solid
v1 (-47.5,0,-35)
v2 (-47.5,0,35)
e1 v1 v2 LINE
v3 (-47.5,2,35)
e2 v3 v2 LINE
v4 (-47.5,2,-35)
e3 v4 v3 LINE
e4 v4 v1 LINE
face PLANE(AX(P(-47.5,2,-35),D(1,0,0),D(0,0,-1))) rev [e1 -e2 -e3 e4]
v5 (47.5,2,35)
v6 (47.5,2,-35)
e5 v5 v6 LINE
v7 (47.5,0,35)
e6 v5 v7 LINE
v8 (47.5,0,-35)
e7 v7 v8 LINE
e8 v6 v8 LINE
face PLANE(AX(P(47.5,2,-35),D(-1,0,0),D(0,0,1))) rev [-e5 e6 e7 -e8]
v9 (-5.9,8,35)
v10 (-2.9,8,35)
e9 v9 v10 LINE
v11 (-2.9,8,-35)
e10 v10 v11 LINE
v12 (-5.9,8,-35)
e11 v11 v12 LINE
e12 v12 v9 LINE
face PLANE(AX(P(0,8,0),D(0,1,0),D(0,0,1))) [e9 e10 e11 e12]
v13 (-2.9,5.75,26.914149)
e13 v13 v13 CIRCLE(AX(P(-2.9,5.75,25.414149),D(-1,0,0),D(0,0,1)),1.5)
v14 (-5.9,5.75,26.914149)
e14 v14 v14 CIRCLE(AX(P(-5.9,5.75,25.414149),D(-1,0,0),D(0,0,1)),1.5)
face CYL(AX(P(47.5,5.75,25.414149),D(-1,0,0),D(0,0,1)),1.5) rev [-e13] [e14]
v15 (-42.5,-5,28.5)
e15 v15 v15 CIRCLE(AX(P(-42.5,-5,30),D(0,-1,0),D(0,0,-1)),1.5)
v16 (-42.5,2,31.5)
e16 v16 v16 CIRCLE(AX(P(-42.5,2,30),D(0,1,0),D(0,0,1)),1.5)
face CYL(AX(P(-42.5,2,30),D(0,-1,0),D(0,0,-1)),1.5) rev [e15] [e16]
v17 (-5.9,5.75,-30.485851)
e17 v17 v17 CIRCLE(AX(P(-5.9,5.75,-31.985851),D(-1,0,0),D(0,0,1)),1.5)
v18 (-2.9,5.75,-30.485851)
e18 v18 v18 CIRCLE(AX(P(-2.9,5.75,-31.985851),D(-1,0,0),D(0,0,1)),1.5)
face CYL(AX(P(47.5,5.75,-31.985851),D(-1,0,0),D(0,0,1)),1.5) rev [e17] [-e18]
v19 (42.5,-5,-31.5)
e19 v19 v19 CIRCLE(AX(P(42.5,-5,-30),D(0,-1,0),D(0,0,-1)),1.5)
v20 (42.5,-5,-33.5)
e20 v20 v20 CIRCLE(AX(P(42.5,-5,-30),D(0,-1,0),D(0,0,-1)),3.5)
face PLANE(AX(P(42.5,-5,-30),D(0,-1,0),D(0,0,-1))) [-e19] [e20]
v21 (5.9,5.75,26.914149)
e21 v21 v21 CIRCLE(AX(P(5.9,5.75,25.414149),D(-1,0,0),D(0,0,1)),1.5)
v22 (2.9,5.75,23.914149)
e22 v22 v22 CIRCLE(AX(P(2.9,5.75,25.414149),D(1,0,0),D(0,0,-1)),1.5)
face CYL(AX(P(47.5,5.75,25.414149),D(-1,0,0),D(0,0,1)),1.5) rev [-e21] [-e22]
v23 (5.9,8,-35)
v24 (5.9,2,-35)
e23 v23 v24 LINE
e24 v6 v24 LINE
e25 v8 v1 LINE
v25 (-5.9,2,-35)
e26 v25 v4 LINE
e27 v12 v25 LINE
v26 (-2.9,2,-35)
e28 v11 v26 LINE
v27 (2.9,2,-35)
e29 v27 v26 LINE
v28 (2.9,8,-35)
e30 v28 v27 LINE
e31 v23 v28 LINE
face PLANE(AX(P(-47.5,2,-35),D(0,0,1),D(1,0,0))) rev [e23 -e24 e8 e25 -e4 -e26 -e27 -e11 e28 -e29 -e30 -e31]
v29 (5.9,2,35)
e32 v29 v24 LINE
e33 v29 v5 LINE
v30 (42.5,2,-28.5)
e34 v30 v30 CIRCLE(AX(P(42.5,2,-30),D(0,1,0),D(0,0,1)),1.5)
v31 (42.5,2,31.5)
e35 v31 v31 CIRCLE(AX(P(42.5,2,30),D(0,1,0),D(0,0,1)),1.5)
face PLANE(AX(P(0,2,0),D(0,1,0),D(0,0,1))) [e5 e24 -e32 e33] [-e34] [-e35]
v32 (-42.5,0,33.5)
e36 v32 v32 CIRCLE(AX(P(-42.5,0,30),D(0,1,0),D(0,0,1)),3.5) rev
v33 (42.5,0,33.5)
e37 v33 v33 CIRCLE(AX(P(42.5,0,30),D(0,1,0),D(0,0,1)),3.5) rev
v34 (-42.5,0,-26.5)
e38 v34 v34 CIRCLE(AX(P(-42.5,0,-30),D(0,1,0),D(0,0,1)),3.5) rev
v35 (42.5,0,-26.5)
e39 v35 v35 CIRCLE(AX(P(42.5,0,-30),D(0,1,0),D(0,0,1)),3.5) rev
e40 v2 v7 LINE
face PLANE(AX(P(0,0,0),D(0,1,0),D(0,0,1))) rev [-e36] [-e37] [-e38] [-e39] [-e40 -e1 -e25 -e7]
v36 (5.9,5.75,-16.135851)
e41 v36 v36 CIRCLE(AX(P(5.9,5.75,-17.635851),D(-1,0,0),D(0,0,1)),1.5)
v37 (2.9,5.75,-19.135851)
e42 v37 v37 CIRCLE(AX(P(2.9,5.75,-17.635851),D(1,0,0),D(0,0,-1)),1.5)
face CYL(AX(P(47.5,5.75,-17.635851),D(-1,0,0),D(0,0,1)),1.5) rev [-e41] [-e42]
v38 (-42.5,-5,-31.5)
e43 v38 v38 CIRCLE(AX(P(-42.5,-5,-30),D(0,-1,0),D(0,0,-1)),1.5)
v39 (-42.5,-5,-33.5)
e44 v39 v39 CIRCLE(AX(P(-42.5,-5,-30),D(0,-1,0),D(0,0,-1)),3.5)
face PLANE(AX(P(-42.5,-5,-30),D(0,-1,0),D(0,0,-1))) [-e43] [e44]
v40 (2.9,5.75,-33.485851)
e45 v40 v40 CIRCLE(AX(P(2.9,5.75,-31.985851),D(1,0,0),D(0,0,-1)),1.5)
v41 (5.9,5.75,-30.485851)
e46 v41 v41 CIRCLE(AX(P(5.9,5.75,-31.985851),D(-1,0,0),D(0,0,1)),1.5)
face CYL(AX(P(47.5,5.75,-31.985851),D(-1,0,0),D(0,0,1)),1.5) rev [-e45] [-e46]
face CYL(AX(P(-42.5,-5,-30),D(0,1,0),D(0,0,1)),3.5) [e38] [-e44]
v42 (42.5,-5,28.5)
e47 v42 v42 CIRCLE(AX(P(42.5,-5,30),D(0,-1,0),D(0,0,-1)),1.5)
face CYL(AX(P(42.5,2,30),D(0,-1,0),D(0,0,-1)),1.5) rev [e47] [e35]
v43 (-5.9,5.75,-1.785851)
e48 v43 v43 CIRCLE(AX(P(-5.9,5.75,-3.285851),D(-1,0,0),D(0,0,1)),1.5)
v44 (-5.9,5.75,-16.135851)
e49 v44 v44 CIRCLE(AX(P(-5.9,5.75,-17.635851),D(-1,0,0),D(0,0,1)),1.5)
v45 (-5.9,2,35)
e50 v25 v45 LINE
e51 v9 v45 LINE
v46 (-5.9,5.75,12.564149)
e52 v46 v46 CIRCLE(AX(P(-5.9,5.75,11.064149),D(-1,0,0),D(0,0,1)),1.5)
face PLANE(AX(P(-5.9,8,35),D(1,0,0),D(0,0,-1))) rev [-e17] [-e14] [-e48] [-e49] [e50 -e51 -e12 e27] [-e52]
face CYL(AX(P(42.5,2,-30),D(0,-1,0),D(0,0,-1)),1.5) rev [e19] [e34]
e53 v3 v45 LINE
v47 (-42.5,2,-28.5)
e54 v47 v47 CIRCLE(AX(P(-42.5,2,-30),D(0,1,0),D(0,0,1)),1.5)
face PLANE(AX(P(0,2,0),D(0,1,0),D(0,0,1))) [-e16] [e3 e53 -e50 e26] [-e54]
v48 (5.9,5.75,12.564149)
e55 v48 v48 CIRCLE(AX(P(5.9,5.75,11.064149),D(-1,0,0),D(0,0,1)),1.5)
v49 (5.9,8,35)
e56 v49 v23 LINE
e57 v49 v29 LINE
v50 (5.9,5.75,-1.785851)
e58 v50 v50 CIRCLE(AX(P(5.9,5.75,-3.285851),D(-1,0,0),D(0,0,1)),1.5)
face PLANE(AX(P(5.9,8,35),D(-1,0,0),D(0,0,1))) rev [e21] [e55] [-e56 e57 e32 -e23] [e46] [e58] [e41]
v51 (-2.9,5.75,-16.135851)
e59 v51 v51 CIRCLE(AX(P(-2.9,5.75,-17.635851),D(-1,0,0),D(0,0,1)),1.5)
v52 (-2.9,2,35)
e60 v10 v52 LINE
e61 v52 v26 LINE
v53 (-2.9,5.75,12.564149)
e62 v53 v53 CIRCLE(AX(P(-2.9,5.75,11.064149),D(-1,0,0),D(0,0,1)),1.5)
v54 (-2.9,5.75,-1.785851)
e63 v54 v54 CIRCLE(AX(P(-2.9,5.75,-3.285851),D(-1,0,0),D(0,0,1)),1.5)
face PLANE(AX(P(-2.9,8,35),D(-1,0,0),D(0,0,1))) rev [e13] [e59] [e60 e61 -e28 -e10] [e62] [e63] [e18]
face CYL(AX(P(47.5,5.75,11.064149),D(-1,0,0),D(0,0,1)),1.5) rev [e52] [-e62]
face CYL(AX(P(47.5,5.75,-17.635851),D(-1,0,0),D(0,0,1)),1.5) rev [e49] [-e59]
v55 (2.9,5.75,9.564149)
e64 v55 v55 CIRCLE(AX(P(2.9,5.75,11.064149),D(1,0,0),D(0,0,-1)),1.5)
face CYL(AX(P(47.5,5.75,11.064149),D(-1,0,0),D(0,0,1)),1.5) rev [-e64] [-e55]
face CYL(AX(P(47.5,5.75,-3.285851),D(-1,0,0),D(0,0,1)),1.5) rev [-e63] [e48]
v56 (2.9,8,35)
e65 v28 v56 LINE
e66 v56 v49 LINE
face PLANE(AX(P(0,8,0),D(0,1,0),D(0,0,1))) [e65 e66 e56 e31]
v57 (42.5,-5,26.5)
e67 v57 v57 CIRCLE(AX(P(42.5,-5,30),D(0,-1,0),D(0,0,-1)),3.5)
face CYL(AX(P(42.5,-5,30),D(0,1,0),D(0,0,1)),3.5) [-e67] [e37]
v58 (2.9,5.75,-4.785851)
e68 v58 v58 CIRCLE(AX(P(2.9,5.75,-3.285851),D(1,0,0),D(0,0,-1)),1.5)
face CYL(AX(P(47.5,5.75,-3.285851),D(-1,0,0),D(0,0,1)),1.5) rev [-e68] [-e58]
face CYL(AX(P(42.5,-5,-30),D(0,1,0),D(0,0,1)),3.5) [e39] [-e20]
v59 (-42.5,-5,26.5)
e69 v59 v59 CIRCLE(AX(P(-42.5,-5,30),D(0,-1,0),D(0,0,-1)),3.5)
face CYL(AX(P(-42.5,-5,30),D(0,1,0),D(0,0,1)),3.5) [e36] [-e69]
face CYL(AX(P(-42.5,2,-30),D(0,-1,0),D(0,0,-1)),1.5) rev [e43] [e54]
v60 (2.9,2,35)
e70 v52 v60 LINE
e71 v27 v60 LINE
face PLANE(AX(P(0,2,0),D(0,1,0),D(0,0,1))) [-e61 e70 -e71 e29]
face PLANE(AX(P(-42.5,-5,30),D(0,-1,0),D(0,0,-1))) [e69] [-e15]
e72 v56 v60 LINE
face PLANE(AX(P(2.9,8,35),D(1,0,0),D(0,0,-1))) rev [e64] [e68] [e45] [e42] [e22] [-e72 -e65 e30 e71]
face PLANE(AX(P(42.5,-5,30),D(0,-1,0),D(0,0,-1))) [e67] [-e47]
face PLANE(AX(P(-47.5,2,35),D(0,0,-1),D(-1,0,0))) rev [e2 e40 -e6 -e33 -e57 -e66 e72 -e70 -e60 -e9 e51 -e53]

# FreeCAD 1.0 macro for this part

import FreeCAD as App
import Part
import Sketcher

V = App.Vector


def add_polygon(sketch, points):
    """Adds a closed chain of lines whose ends are joined by coincident constraints."""
    first, n = sketch.GeometryCount, len(points)
    for a, b in zip(points, points[1:] + points[:1]):
        sketch.addGeometry(Part.LineSegment(App.Vector(*a, 0), App.Vector(*b, 0)), False)
    for i in range(n):
        sketch.addConstraint(Sketcher.Constraint("Coincident", first + i, 2, first + (i + 1) % n, 1))

doc = App.newDocument("Part")
body = doc.addObject("PartDesign::Body", "Body")

sketch1 = doc.addObject("Sketcher::SketchObject", "Sketch")
body.addObject(sketch1)
sketch1.AttachmentSupport = (doc.XZ_Plane, [""])
sketch1.MapMode = "FlatFace"
add_polygon(sketch1, [(-47.5, -35), (-47.5, 35), (47.5, 35), (47.5, -35)])
sketch1.addGeometry(Part.Circle(V(-42.5, 30, 0), V(0, 0, 1), 1.5), False)
sketch1.addGeometry(Part.Circle(V(42.5, 30, 0), V(0, 0, 1), 1.5), False)
sketch1.addGeometry(Part.Circle(V(-42.5, -30, 0), V(0, 0, 1), 1.5), False)
sketch1.addGeometry(Part.Circle(V(42.5, -30, 0), V(0, 0, 1), 1.5), False)
sketch1.addConstraint([
    Sketcher.Constraint("Vertical", 0),
    Sketcher.Constraint("Horizontal", 1),
    Sketcher.Constraint("Vertical", 2),
    Sketcher.Constraint("Horizontal", 3),
    Sketcher.Constraint("Equal", 4, 5),
    Sketcher.Constraint("Equal", 5, 6),
    Sketcher.Constraint("Equal", 6, 7),
    Sketcher.Constraint("Symmetric", 5, 3, 6, 3, -1, 1),
    Sketcher.Constraint("Symmetric", 4, 3, 7, 3, -1, 1),
    Sketcher.Constraint("Symmetric", 0, 2, 2, 2, -1, 1),
    Sketcher.Constraint("Symmetric", 4, 3, 5, 3, -2),
    Sketcher.Constraint("Diameter", 4, 3.0),
    Sketcher.Constraint("DistanceX", 1, 1, 1, 2, 95.0),
    Sketcher.Constraint("DistanceY", 0, 1, 0, 2, 70.0),
    Sketcher.Constraint("DistanceY", -1, 1, 4, 3, 30.0),
    Sketcher.Constraint("DistanceX", 4, 3, 5, 3, 85.0),
])
pad1 = doc.addObject("PartDesign::Pad", "Pad")
body.addObject(pad1)
pad1.Profile = sketch1
pad1.Length = 2
pad1.Reversed = True

sketch2 = doc.addObject("Sketcher::SketchObject", "Sketch001")
body.addObject(sketch2)
sketch2.AttachmentSupport = (doc.XZ_Plane, [""])
sketch2.MapMode = "FlatFace"
sketch2.AttachmentOffset = App.Placement(V(0, 0, -2), App.Rotation())
add_polygon(sketch2, [(-5.9, -35), (-5.9, 35), (-2.9, 35), (-2.9, -35)])
add_polygon(sketch2, [(2.9, -35), (2.9, 35), (5.9, 35), (5.9, -35)])
sketch2.addConstraint([
    Sketcher.Constraint("Vertical", 0),
    Sketcher.Constraint("Horizontal", 1),
    Sketcher.Constraint("Vertical", 2),
    Sketcher.Constraint("Horizontal", 3),
    Sketcher.Constraint("Vertical", 4),
    Sketcher.Constraint("Horizontal", 5),
    Sketcher.Constraint("Vertical", 6),
    Sketcher.Constraint("Horizontal", 7),
    Sketcher.Constraint("Symmetric", 2, 2, 4, 2, -1, 1),
    Sketcher.Constraint("Symmetric", 0, 2, 6, 2, -1, 1),
    Sketcher.Constraint("Horizontal", 1, 2, 4, 2),
    Sketcher.Constraint("DistanceX", 1, 1, 1, 2, 3.0),
    Sketcher.Constraint("DistanceY", 0, 1, 0, 2, 70.0),
    Sketcher.Constraint("DistanceX", 0, 2, -1, 1, 5.9),
])
pad2 = doc.addObject("PartDesign::Pad", "Pad001")
body.addObject(pad2)
pad2.Profile = sketch2
pad2.Length = 6
pad2.Reversed = True

sketch3 = doc.addObject("Sketcher::SketchObject", "Sketch002")
body.addObject(sketch3)
sketch3.AttachmentSupport = (doc.YZ_Plane, [""])
sketch3.MapMode = "FlatFace"
sketch3.AttachmentOffset = App.Placement(V(0, 0, -5.9), App.Rotation())
sketch3.addGeometry([
    Part.Circle(V(5.8, -32, 0), V(0, 0, 1), 1.5),
    Part.Circle(V(5.8, -17.6, 0), V(0, 0, 1), 1.5),
    Part.Circle(V(5.8, -3.3, 0), V(0, 0, 1), 1.5),
    Part.Circle(V(5.8, 11.1, 0), V(0, 0, 1), 1.5),
    Part.Circle(V(5.8, 25.4, 0), V(0, 0, 1), 1.5),
], False)
sketch3.addConstraint([
    Sketcher.Constraint("Equal", 0, 1),
    Sketcher.Constraint("Equal", 1, 2),
    Sketcher.Constraint("Equal", 2, 3),
    Sketcher.Constraint("Equal", 3, 4),
    Sketcher.Constraint("Vertical", 0, 3, 1, 3),
    Sketcher.Constraint("Vertical", 1, 3, 2, 3),
    Sketcher.Constraint("Vertical", 2, 3, 3, 3),
    Sketcher.Constraint("Vertical", 3, 3, 4, 3),
    Sketcher.Constraint("Diameter", 0, 3.0),
    Sketcher.Constraint("DistanceY", 0, 3, 2, 3, 28.7),
    Sketcher.Constraint("DistanceY", 1, 3, 3, 3, 28.7),
    Sketcher.Constraint("DistanceY", 2, 3, 4, 3, 28.7),
    Sketcher.Constraint("DistanceX", -1, 1, 0, 3, 5.75),
    Sketcher.Constraint("DistanceY", 0, 3, 1, 3, 14.35),
    Sketcher.Constraint("DistanceY", 0, 3, -1, 1, 31.985851),
])
pocket1 = doc.addObject("PartDesign::Pocket", "Pocket")
body.addObject(pocket1)
pocket1.Profile = sketch3
pocket1.Type = "ThroughAll"
pocket1.Reversed = True

sketch4 = doc.addObject("Sketcher::SketchObject", "Sketch003")
body.addObject(sketch4)
sketch4.AttachmentSupport = (doc.XZ_Plane, [""])
sketch4.MapMode = "FlatFace"
sketch4.addGeometry([
    Part.Circle(V(-42.5, -30, 0), V(0, 0, 1), 3.5),
    Part.Circle(V(-42.5, -30, 0), V(0, 0, 1), 1.5),
    Part.Circle(V(-42.5, 30, 0), V(0, 0, 1), 3.5),
    Part.Circle(V(-42.5, 30, 0), V(0, 0, 1), 1.5),
    Part.Circle(V(42.5, 30, 0), V(0, 0, 1), 3.5),
    Part.Circle(V(42.5, 30, 0), V(0, 0, 1), 1.5),
    Part.Circle(V(42.5, -30, 0), V(0, 0, 1), 3.5),
    Part.Circle(V(42.5, -30, 0), V(0, 0, 1), 1.5),
], False)
sketch4.addConstraint([
    Sketcher.Constraint("Coincident", 1, 3, 0, 3),
    Sketcher.Constraint("Coincident", 3, 3, 2, 3),
    Sketcher.Constraint("Coincident", 5, 3, 4, 3),
    Sketcher.Constraint("Coincident", 7, 3, 6, 3),
    Sketcher.Constraint("Equal", 0, 2),
    Sketcher.Constraint("Equal", 1, 3),
    Sketcher.Constraint("Equal", 2, 4),
    Sketcher.Constraint("Equal", 3, 5),
    Sketcher.Constraint("Equal", 4, 6),
    Sketcher.Constraint("Equal", 5, 7),
    Sketcher.Constraint("Symmetric", 0, 3, 4, 3, -1, 1),
    Sketcher.Constraint("Symmetric", 2, 3, 6, 3, -1, 1),
    Sketcher.Constraint("Symmetric", 2, 3, 4, 3, -2),
    Sketcher.Constraint("Diameter", 0, 7.0),
    Sketcher.Constraint("Diameter", 1, 3.0),
    Sketcher.Constraint("DistanceY", 0, 3, -1, 1, 30.0),
    Sketcher.Constraint("DistanceX", 2, 3, 4, 3, 85.0),
])
pad3 = doc.addObject("PartDesign::Pad", "Pad002")
body.addObject(pad3)
pad3.Profile = sketch4
pad3.Length = 5

doc.recompute()
